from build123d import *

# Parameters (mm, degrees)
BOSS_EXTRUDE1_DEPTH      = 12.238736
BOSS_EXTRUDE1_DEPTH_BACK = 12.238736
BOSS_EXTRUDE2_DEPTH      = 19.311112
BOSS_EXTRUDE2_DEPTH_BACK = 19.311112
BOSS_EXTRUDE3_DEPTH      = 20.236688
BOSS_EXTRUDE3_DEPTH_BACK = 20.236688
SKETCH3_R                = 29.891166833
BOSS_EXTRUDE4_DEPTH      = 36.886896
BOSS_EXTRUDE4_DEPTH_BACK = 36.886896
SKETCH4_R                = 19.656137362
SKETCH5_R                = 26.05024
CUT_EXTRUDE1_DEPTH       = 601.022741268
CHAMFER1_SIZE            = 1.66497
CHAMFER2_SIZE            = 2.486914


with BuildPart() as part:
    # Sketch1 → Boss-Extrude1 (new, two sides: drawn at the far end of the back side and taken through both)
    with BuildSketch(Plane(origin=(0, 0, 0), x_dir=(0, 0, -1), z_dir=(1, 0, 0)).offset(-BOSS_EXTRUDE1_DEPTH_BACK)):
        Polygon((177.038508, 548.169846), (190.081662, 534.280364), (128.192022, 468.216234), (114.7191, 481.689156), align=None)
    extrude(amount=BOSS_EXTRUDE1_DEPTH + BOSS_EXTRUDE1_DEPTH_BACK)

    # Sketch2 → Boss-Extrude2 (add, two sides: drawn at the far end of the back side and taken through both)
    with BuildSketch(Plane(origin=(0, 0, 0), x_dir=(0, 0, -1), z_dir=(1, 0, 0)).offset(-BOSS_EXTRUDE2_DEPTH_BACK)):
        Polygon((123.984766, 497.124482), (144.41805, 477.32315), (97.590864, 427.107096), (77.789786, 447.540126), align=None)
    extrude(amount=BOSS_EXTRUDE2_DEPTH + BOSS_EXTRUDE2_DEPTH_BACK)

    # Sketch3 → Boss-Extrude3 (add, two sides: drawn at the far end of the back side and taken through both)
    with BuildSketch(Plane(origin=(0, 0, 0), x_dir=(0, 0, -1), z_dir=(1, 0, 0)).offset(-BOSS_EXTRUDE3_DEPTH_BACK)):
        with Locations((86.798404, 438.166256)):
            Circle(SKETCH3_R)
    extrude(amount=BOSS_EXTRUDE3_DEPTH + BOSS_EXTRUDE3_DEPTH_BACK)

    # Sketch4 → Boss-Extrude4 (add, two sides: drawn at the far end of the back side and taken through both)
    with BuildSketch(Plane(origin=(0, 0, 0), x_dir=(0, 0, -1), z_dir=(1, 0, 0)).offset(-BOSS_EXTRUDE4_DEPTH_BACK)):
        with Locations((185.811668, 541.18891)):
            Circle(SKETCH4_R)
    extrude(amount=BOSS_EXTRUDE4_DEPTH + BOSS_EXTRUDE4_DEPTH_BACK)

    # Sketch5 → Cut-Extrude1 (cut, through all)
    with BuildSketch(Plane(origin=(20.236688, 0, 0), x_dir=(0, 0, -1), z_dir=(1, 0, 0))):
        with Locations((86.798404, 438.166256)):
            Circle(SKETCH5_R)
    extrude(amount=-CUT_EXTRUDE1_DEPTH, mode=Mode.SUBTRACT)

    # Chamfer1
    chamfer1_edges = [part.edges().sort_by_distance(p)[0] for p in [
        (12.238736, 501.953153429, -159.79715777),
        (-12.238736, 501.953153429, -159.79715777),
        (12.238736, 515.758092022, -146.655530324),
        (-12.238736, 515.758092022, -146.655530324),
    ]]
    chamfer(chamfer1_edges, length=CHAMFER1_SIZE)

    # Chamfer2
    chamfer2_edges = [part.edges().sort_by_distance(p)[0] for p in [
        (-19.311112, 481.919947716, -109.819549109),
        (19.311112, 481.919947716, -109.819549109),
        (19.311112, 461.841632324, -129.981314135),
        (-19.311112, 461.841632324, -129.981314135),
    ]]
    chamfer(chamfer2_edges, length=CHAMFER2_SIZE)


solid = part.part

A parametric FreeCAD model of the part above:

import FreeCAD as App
import Part
import Sketcher

V = App.Vector
Q = App.Units.Quantity


def edges_at(feature, points):
    """Names of the edges that pass closest to the given points."""
    edges = feature.Shape.Edges
    near = lambda p: min(range(len(edges)), key=lambda i: edges[i].distToShape(Part.Vertex(*p))[0])
    return sorted({f"Edge{near(p) + 1}" for p in points})

doc = App.newDocument("Part")
body = doc.addObject("PartDesign::Body", "Body")

# Sketch on YZ plane
sketch1 = body.newObject("Sketcher::SketchObject", "Sketch")
sketch1.AttachmentSupport = (doc.getObject("YZ_Plane"), [""])
sketch1.MapMode = "FlatFace"
sketch1.addGeometry([
    Part.LineSegment(V(534, -190, 0), V(548, -177, 0)),
    Part.LineSegment(V(548, -177, 0), V(482, -115, 0)),
    Part.LineSegment(V(482, -115, 0), V(468, -128, 0)),
    Part.LineSegment(V(468, -128, 0), V(534, -190, 0)),
], False)
sketch1.addConstraint([
    Sketcher.Constraint("Coincident", 0, 2, 1, 1),
    Sketcher.Constraint("Coincident", 1, 2, 2, 1),
    Sketcher.Constraint("Coincident", 2, 2, 3, 1),
    Sketcher.Constraint("Coincident", 3, 2, 0, 1),
    Sketcher.Constraint("Angle", 2, Q("-135 deg")),
    Sketcher.Constraint("DistanceY", 1, 2, -1, 1, Q("114.7191 mm")),
    Sketcher.Constraint("Distance", 0, Q("19.05365 mm")),
    Sketcher.Constraint("Distance", 2, Q("19.053589 mm")),
    Sketcher.Constraint("DistanceY", 0, 2, -1, 1, Q("177.038508 mm")),
    Sketcher.Constraint("DistanceY", 3, 2, -1, 1, Q("190.081662 mm")),
    Sketcher.Constraint("DistanceX", 1, 2, 0, 2, Q("66.48069 mm")),
    Sketcher.Constraint("DistanceX", -1, 1, 0, 2, Q("548.169846 mm")),
])
pad1 = body.newObject("PartDesign::Pad", "Pad")
pad1.Profile = sketch1
pad1.Type = "TwoLengths"
pad1.Length = 12.238736
pad1.Length2 = 12.238736

# Sketch on YZ plane
sketch2 = body.newObject("Sketcher::SketchObject", "Sketch001")
sketch2.AttachmentSupport = (doc.getObject("YZ_Plane"), [""])
sketch2.MapMode = "FlatFace"
sketch2.addGeometry([
    Part.LineSegment(V(477, -144, 0), V(497, -124, 0)),
    Part.LineSegment(V(497, -124, 0), V(448, -78, 0)),
    Part.LineSegment(V(448, -78, 0), V(427, -98, 0)),
    Part.LineSegment(V(427, -98, 0), V(477, -144, 0)),
], False)
sketch2.addConstraint([
    Sketcher.Constraint("Coincident", 0, 2, 1, 1),
    Sketcher.Constraint("Coincident", 1, 2, 2, 1),
    Sketcher.Constraint("Coincident", 2, 2, 3, 1),
    Sketcher.Constraint("Coincident", 3, 2, 0, 1),
    Sketcher.Constraint("DistanceY", 0, 2, 2, 2, Q("26.393902 mm")),
    Sketcher.Constraint("Distance", 0, Q("28.453679 mm")),
    Sketcher.Constraint("Distance", 1, Q("67.76861 mm")),
    Sketcher.Constraint("Distance", 2, Q("28.45332 mm")),
    Sketcher.Constraint("Distance", 3, Q("68.661761 mm")),
    Sketcher.Constraint("DistanceX", -1, 1, 0, 2, Q("497.124482 mm")),
    Sketcher.Constraint("DistanceX", -1, 1, 3, 2, Q("477.32315 mm")),
    Sketcher.Constraint("DistanceY", 3, 2, -1, 1, Q("144.41805 mm")),
])
pad2 = body.newObject("PartDesign::Pad", "Pad001")
pad2.Profile = sketch2
pad2.Type = "TwoLengths"
pad2.Length = 19.311112
pad2.Length2 = 19.311112

# Sketch on YZ plane
sketch3 = body.newObject("Sketcher::SketchObject", "Sketch002")
sketch3.AttachmentSupport = (doc.getObject("YZ_Plane"), [""])
sketch3.MapMode = "FlatFace"
sketch3.addGeometry(Part.Circle(V(438, -87, 0), V(0, 0, 1), 30), False)
sketch3.addConstraint([
    Sketcher.Constraint("Diameter", 0, Q("59.782334 mm")),
    Sketcher.Constraint("DistanceX", -1, 1, 0, 3, Q("438.166256 mm")),
    Sketcher.Constraint("DistanceY", 0, 3, -1, 1, Q("86.798404 mm")),
])
pad3 = body.newObject("PartDesign::Pad", "Pad002")
pad3.Profile = sketch3
pad3.Type = "TwoLengths"
pad3.Length = 20.236688
pad3.Length2 = 20.236688

# Sketch on YZ plane
sketch4 = body.newObject("Sketcher::SketchObject", "Sketch003")
sketch4.AttachmentSupport = (doc.getObject("YZ_Plane"), [""])
sketch4.MapMode = "FlatFace"
sketch4.addGeometry(Part.Circle(V(541, -186, 0), V(0, 0, 1), 20), False)
sketch4.addConstraint([
    Sketcher.Constraint("Diameter", 0, Q("39.312275 mm")),
    Sketcher.Constraint("DistanceX", -1, 1, 0, 3, Q("541.18891 mm")),
    Sketcher.Constraint("DistanceY", 0, 3, -1, 1, Q("185.811668 mm")),
])
pad4 = body.newObject("PartDesign::Pad", "Pad003")
pad4.Profile = sketch4
pad4.Type = "TwoLengths"
pad4.Length = 36.886896
pad4.Length2 = 36.886896

# Sketch on YZ plane
sketch5 = body.newObject("Sketcher::SketchObject", "Sketch004")
sketch5.AttachmentSupport = (doc.getObject("YZ_Plane"), [""])
sketch5.MapMode = "FlatFace"
sketch5.AttachmentOffset = App.Placement(V(0, 0, 20.236688), App.Rotation())
sketch5.addGeometry(Part.Circle(V(438, -87, 0), V(0, 0, 1), 26), False)
sketch5.addConstraint([
    Sketcher.Constraint("Diameter", 0, Q("52.10048 mm")),
    Sketcher.Constraint("DistanceX", -1, 1, 0, 3, Q("438.166256 mm")),
    Sketcher.Constraint("DistanceY", 0, 3, -1, 1, Q("86.798404 mm")),
])
pocket1 = body.newObject("PartDesign::Pocket", "Pocket")
pocket1.Profile = sketch5
pocket1.Type = "ThroughAll"
doc.recompute()

chamfer = body.newObject("PartDesign::Chamfer", "Chamfer")
chamfer.Base = (pocket1, edges_at(pocket1, [
    (12.239, 501.953, -159.797),
    (-12.239, 501.953, -159.797),
    (12.239, 515.758, -146.656),
    (-12.239, 515.758, -146.656),
]))
chamfer.Size = 1.66497
doc.recompute()

chamfer2 = body.newObject("PartDesign::Chamfer", "Chamfer001")
chamfer2.Base = (chamfer, edges_at(chamfer, [
    (-19.311, 481.92, -109.82),
    (19.311, 481.92, -109.82),
    (19.311, 461.842, -129.981),
    (-19.311, 461.842, -129.981),
]))
chamfer2.Size = 2.486914

doc.recompute()
